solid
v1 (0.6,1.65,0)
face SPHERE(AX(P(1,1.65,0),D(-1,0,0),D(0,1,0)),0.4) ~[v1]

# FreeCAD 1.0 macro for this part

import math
import FreeCAD as App
import Part
import Sketcher

V = App.Vector

doc = App.newDocument("Part")
body = doc.addObject("PartDesign::Body", "Body")

# Sketch on XY plane
sketch1 = body.newObject("Sketcher::SketchObject", "Sketch")
sketch1.AttachmentSupport = (doc.getObject("XY_Plane"), [""])
sketch1.MapMode = "FlatFace"
sketch1.addGeometry([
    Part.LineSegment(V(0.6, 1.65, 0), V(1.4, 1.65, 0)),
    Part.ArcOfCircle(Part.Circle(V(1, 1.65, 0), V(0, 0, 1), 0.4), math.radians(0), math.radians(180)),
], False)
sketch1.addGeometry(Part.LineSegment(V(0.6, 1.65, 0), V(1.4, 1.65, 0)), True)  # axis
sketch1.addConstraint([
    Sketcher.Constraint("Coincident", 0, 1, 1, 2),
    Sketcher.Constraint("Coincident", 1, 1, 0, 2),
    Sketcher.Constraint("Horizontal", 0),
    Sketcher.Constraint("Horizontal", 2),
    Sketcher.Constraint("Coincident", 2, 1, 0, 1),
    Sketcher.Constraint("Horizontal", 1, 3, 0, 1),
    Sketcher.Constraint("Equal", 0, 2),
    Sketcher.Constraint("Radius", 1, 0.4),
    Sketcher.Constraint("DistanceX", -1, 1, 1, 3, 1.0),
    Sketcher.Constraint("DistanceY", -1, 1, 1, 3, 1.65),
])
revolution = body.newObject("PartDesign::Revolution", "Revolution")
revolution.Profile = sketch1
revolution.ReferenceAxis = (sketch1, ["Axis0"])
revolution.Angle = 360

doc.recompute()
